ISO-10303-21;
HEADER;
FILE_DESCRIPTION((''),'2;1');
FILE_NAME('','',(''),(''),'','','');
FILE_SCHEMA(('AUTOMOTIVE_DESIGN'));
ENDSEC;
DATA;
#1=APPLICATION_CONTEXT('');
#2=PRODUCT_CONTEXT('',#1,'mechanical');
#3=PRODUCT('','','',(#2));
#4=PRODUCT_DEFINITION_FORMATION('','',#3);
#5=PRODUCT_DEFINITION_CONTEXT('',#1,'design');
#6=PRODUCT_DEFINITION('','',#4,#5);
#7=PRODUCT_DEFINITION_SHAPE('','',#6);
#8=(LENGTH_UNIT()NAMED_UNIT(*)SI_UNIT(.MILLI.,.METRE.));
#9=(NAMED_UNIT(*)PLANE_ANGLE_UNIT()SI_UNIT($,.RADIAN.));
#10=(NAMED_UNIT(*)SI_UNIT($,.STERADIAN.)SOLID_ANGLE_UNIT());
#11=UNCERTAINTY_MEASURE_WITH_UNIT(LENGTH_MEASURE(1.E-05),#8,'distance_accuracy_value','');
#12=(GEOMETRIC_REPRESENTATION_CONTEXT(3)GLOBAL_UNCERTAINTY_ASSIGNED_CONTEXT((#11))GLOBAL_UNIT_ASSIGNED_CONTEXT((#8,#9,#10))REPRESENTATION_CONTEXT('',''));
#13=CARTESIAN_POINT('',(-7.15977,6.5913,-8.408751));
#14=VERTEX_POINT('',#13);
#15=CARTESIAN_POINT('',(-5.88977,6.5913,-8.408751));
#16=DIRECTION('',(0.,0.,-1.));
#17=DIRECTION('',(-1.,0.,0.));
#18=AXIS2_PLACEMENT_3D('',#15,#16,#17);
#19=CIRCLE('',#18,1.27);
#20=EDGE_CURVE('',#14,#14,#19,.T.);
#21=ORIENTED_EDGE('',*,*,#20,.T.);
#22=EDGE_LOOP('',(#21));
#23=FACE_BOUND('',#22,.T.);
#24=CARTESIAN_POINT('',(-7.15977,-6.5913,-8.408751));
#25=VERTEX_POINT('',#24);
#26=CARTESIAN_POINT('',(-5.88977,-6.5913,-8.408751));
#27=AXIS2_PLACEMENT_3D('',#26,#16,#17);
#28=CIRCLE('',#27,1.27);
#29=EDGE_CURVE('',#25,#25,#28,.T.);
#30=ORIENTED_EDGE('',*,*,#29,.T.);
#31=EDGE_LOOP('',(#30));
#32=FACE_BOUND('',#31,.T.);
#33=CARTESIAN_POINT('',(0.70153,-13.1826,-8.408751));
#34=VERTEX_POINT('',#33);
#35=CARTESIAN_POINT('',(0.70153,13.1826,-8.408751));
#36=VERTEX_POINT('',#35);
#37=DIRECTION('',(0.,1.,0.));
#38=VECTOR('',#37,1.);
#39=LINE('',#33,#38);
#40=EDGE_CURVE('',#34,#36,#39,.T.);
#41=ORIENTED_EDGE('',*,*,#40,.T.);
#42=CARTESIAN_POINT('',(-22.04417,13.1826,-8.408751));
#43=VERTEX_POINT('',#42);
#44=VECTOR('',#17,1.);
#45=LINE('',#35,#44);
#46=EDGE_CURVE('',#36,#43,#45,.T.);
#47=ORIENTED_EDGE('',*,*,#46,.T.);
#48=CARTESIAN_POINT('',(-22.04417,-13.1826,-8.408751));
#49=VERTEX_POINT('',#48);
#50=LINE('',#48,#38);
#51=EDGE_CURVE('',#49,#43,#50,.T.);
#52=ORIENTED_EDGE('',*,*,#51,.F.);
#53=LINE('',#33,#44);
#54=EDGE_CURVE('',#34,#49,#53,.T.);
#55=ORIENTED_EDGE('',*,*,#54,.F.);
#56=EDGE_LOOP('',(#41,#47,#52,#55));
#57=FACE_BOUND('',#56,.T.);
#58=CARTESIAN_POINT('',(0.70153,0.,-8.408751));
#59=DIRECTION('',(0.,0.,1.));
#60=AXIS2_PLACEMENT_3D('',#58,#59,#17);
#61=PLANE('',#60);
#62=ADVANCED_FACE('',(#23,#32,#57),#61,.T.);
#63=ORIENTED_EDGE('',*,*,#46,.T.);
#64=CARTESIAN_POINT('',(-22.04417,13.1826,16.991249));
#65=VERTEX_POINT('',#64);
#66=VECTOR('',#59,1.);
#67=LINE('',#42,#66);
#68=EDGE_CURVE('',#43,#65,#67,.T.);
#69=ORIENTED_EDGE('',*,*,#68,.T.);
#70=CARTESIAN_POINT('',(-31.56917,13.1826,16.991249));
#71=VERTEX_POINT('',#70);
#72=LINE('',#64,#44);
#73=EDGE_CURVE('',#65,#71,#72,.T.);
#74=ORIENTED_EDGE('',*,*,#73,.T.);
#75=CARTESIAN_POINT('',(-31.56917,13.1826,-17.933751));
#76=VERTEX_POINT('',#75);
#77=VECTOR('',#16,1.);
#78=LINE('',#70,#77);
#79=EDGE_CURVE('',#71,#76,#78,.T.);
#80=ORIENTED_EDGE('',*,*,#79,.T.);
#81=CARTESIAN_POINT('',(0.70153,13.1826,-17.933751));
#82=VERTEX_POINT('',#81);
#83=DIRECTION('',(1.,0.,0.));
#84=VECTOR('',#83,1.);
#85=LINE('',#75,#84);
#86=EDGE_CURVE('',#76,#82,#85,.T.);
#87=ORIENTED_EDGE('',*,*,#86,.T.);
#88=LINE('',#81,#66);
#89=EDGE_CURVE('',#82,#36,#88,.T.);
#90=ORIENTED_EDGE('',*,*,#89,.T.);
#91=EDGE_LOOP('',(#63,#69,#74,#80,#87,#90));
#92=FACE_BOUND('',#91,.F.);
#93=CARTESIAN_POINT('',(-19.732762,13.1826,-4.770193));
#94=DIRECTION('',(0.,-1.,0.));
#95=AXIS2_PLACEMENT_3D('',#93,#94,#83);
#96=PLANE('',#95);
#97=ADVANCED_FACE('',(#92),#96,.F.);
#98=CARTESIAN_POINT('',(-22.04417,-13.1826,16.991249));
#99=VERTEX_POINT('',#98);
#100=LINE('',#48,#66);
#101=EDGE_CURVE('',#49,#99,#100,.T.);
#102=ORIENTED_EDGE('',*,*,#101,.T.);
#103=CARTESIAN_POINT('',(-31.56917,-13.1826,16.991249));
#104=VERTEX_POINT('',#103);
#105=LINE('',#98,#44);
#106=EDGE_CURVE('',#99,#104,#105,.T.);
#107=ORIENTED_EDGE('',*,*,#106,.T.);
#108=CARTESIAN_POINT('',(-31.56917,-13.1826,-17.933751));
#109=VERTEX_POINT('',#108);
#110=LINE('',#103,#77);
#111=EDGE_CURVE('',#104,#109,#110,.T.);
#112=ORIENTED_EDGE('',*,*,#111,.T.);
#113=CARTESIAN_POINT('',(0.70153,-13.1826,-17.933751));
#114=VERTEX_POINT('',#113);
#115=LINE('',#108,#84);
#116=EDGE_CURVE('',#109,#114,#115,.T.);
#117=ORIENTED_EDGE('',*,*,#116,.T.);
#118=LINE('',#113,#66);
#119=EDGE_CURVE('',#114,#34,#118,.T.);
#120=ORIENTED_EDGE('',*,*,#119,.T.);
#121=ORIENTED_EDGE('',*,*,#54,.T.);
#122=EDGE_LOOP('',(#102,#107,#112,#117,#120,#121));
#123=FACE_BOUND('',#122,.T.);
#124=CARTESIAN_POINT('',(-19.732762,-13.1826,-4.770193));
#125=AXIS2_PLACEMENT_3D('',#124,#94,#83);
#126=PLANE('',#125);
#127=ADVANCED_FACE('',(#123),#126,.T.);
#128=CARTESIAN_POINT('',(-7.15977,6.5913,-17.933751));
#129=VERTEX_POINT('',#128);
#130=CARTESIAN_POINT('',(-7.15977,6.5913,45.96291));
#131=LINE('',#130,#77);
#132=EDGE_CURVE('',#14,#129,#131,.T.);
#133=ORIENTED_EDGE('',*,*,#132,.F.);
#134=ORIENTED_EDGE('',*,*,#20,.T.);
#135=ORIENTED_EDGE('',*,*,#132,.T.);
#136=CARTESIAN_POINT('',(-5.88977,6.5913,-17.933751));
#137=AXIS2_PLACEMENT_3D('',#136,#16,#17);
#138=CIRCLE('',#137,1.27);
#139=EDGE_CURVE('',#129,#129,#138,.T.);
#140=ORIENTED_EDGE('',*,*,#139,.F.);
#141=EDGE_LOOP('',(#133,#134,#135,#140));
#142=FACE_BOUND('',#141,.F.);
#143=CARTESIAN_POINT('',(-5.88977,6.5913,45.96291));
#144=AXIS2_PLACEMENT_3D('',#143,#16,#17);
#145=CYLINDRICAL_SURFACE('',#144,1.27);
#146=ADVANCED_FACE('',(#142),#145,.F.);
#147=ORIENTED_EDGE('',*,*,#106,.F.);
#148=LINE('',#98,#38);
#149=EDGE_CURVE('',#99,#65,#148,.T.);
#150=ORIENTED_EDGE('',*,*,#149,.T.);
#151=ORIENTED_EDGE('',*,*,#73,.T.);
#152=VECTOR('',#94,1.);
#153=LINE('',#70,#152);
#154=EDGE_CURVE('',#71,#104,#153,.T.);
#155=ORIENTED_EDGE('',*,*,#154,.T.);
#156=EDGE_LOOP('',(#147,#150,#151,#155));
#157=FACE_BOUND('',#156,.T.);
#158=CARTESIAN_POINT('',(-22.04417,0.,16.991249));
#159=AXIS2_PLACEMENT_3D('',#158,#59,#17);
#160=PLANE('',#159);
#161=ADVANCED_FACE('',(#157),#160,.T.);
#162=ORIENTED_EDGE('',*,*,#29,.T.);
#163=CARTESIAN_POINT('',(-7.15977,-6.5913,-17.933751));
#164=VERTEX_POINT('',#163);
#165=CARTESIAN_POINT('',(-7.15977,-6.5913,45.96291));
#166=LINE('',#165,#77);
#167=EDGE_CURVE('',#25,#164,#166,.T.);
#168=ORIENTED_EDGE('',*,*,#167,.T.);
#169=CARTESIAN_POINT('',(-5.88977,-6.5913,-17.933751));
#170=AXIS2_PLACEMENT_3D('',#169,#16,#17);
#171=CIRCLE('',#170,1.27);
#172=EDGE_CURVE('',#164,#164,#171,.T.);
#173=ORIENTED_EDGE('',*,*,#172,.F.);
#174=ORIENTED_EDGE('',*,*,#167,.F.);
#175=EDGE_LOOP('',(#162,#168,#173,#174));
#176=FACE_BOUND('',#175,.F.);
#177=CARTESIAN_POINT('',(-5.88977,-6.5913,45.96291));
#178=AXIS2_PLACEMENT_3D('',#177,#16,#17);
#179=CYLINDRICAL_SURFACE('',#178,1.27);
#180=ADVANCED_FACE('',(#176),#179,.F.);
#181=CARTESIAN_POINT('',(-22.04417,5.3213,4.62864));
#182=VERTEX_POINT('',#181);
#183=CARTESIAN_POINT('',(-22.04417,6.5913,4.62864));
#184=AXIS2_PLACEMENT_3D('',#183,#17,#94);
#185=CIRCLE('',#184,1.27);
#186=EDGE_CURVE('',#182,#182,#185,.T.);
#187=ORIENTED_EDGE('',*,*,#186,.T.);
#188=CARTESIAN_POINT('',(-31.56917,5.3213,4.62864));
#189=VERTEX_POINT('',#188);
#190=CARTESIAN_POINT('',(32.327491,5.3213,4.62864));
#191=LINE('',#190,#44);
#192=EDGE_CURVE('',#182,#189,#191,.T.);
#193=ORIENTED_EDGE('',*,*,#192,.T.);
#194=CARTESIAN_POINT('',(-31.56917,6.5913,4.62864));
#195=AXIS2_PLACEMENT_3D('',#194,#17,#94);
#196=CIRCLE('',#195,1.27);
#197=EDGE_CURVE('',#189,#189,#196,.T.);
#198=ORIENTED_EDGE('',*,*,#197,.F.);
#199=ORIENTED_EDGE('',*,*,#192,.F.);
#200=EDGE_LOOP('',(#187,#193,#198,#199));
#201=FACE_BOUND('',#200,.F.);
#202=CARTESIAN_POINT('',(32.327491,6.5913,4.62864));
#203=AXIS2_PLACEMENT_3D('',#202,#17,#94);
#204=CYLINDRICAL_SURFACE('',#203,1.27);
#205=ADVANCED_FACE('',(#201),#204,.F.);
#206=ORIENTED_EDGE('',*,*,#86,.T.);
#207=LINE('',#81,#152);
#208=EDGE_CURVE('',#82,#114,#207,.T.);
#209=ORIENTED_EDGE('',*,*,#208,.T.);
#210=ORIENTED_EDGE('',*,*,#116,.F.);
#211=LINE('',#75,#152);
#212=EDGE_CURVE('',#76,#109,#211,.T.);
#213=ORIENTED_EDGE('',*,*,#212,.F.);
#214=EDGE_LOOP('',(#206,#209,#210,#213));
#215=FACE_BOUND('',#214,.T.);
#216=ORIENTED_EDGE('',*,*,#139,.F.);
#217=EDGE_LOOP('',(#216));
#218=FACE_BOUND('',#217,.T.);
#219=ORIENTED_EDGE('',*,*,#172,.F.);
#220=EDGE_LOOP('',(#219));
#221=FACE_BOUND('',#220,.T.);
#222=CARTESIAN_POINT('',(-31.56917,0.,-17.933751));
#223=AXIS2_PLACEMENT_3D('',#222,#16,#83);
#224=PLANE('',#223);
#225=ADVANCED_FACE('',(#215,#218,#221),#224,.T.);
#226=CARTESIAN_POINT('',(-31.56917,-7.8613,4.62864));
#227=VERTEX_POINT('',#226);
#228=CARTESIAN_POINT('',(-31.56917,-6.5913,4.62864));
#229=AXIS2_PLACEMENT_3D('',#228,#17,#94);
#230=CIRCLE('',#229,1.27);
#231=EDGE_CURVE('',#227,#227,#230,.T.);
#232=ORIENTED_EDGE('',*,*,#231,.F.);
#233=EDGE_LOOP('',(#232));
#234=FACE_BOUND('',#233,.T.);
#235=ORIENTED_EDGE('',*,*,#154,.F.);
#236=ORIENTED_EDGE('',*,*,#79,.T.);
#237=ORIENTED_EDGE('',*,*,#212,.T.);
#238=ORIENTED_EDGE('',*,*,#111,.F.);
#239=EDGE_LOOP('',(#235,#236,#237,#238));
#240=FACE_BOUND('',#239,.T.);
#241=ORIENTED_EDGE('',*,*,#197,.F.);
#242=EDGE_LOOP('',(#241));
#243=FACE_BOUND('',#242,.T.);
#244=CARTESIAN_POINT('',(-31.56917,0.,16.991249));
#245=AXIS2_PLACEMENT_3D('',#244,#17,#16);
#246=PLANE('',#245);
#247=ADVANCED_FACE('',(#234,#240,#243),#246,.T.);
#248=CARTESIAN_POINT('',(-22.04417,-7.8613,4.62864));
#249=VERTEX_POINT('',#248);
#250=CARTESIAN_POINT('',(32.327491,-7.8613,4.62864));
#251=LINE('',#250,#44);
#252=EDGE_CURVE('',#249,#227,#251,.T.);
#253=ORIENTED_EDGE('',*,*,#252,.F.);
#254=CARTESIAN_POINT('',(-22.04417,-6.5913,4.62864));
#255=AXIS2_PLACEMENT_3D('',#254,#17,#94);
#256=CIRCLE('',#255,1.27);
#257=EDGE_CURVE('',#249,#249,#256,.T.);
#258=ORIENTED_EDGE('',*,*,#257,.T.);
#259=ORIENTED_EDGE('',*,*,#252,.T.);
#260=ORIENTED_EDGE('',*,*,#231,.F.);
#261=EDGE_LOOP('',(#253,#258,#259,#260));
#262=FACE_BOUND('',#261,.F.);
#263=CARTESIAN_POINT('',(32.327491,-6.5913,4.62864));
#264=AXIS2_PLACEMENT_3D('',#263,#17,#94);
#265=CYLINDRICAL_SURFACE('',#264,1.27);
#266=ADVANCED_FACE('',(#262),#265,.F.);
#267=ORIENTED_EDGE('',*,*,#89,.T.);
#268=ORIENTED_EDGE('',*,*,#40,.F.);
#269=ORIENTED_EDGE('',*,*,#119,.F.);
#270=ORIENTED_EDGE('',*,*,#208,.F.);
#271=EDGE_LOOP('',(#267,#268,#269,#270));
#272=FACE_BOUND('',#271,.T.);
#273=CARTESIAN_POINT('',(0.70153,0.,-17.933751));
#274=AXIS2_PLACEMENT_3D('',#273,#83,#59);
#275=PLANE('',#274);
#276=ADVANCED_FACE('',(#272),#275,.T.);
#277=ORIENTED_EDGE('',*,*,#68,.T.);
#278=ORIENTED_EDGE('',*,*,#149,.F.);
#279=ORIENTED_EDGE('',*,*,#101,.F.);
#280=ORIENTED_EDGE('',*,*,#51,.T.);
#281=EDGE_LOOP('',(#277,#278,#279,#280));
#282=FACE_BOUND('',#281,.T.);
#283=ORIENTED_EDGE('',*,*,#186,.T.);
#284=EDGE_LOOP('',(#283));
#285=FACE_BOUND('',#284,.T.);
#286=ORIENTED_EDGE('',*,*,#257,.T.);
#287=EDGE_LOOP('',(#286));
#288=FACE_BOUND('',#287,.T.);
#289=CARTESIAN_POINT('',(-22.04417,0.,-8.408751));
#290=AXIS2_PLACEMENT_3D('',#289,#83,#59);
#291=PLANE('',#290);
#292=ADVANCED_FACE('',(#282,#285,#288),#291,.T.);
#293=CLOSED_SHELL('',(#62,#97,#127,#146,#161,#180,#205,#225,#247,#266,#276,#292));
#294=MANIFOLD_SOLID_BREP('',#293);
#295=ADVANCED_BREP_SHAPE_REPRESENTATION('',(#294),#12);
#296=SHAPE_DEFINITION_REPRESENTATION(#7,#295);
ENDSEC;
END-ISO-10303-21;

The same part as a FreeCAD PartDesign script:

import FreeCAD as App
import Part
import Sketcher
Q = App.Units.Quantity


def add_polygon(sketch, points):
    """Adds a closed chain of lines whose ends are joined by coincident constraints."""
    first, n = sketch.GeometryCount, len(points)
    for a, b in zip(points, points[1:] + points[:1]):
        sketch.addGeometry(Part.LineSegment(App.Vector(*a, 0), App.Vector(*b, 0)), False)
    for i in range(n):
        sketch.addConstraint(Sketcher.Constraint("Coincident", first + i, 2, first + (i + 1) % n, 1))

doc = App.newDocument("Part")
params = doc.addObject("Spreadsheet::Sheet", "Params")
for row, (alias, value) in enumerate([
    ("sketch1_height", "1 in"),
    ("sketch1_width", "0.375 in"),
    ("pad1_length", "1.038 in"),
    ("sketch2_diameter", "0.1 in"),
    ("hole_diameter", "0.1 in"),
    ("sketch3_diameter", "0.1 in"),
    ("hole2_diameter", "0.1 in"),
], start=1):
    params.set(f"A{row}", alias)
    params.set(f"B{row}", "=" + value)
    params.setAlias(f"B{row}", alias)

body = doc.addObject("PartDesign::Body", "Body")

sketch1 = doc.addObject("Sketcher::SketchObject", "Sketch")
body.addObject(sketch1)
sketch1.AttachmentSupport = (doc.XZ_Plane, [""])
sketch1.MapMode = "FlatFace"
add_polygon(sketch1, [(-22, 17), (-32, 17), (-32, -18), (1, -18), (1, -8), (-22, -8)])
sketch1.addConstraint([
    Sketcher.Constraint("Horizontal", 0),
    Sketcher.Constraint("Vertical", 1),
    Sketcher.Constraint("Horizontal", 2),
    Sketcher.Constraint("Vertical", 3),
    Sketcher.Constraint("Horizontal", 4),
    Sketcher.Constraint("Vertical", 5),
    Sketcher.Constraint("Equal", 0, 3),
    Sketcher.Constraint("DistanceY", 5, 1, 5, 2, Q("1 in")),
    Sketcher.Constraint("DistanceX", 0, 2, 0, 1, Q("0.375 in")),
    Sketcher.Constraint("DistanceX", 2, 1, 2, 2, Q("1.2705 in")),
    Sketcher.Constraint("DistanceX", 0, 2, -1, 1, Q("31.56917 mm")),
    Sketcher.Constraint("DistanceY", -1, 1, 0, 2, Q("16.991249 mm")),
])
sketch1.setExpression("Constraints[13]", "Params.sketch1_height")
sketch1.setExpression("Constraints[14]", "Params.sketch1_width")
pad1 = doc.addObject("PartDesign::Pad", "Pad")
body.addObject(pad1)
pad1.Profile = sketch1
pad1.setExpression("Length", "Params.pad1_length")
pad1.Midplane = True

sketch2 = doc.addObject("Sketcher::SketchObject", "Sketch001")
body.addObject(sketch2)
sketch2.AttachmentSupport = (doc.XY_Plane, [""])
sketch2.MapMode = "FlatFace"
sketch2.AttachmentOffset = App.Placement(App.Vector(0, 0, -8.408751), App.Rotation())
sketch2.addGeometry([
    Part.Circle(App.Vector(-5.9, 6.6, 0), App.Vector(0, 0, 1), 1.3),
    Part.Circle(App.Vector(-5.9, -6.6, 0), App.Vector(0, 0, 1), 1.3),
], False)
sketch2.addConstraint([
    Sketcher.Constraint("Equal", 0, 1),
    Sketcher.Constraint("Symmetric", 0, 3, 1, 3, -1),
    Sketcher.Constraint("Diameter", 0, Q("0.1 in")),
    Sketcher.Constraint("DistanceY", 1, 3, 0, 3, Q("0.519 in")),
    Sketcher.Constraint("DistanceX", 0, 3, -1, 1, Q("5.88977 mm")),
])
sketch2.setExpression("Constraints[2]", "Params.sketch2_diameter")
doc.recompute()
hole = doc.addObject("PartDesign::Hole", "Hole")
body.addObject(hole)
hole.Profile = sketch2
hole.ThreadType = "None"
hole.setExpression("Diameter", "Params.hole_diameter")
hole.DepthType = "ThroughAll"

sketch3 = doc.addObject("Sketcher::SketchObject", "Sketch002")
body.addObject(sketch3)
sketch3.AttachmentSupport = (doc.YZ_Plane, [""])
sketch3.MapMode = "FlatFace"
sketch3.AttachmentOffset = App.Placement(App.Vector(0, 0, -22.04417), App.Rotation())
sketch3.addGeometry([
    Part.Circle(App.Vector(-6.6, 4.6, 0), App.Vector(0, 0, 1), 1.3),
    Part.Circle(App.Vector(6.6, 4.6, 0), App.Vector(0, 0, 1), 1.3),
], False)
sketch3.addConstraint([
    Sketcher.Constraint("Equal", 0, 1),
    Sketcher.Constraint("Symmetric", 0, 3, 1, 3, -2),
    Sketcher.Constraint("Diameter", 0, Q("0.1 in")),
    Sketcher.Constraint("DistanceX", 0, 3, 1, 3, Q("0.519 in")),
    Sketcher.Constraint("DistanceY", -1, 1, 0, 3, Q("4.62864 mm")),
])
sketch3.setExpression("Constraints[2]", "Params.sketch3_diameter")
doc.recompute()
hole2 = doc.addObject("PartDesign::Hole", "Hole001")
body.addObject(hole2)
hole2.Profile = sketch3
hole2.ThreadType = "None"
hole2.setExpression("Diameter", "Params.hole2_diameter")
hole2.DepthType = "ThroughAll"

doc.recompute()
